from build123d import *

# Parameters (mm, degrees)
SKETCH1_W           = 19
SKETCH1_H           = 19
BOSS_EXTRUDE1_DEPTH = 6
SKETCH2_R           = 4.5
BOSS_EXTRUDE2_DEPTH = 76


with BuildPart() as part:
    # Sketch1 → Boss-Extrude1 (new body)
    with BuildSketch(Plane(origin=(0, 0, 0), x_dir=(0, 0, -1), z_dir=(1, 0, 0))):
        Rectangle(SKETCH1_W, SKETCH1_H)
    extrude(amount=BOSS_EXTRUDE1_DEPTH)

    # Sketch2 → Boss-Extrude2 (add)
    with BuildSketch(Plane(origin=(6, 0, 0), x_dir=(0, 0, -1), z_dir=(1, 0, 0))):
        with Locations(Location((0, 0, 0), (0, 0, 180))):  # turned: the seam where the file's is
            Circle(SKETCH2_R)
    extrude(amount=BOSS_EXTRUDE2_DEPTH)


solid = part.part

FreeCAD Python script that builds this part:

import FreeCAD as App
import Part
import Sketcher
from FreeCAD import Vector


def add_polygon(sketch, points):
    """Adds a closed chain of lines whose ends are joined by coincident constraints."""
    first, n = sketch.GeometryCount, len(points)
    for a, b in zip(points, points[1:] + points[:1]):
        sketch.addGeometry(Part.LineSegment(App.Vector(*a, 0), App.Vector(*b, 0)), False)
    for i in range(n):
        sketch.addConstraint(Sketcher.Constraint("Coincident", first + i, 2, first + (i + 1) % n, 1))

doc = App.newDocument("Part")
body = doc.addObject("PartDesign::Body", "Body")

# Sketch on YZ plane
sketch1 = doc.addObject("Sketcher::SketchObject", "Sketch")
body.addObject(sketch1)
sketch1.AttachmentSupport = (doc.YZ_Plane, [""])
sketch1.MapMode = "FlatFace"
add_polygon(sketch1, [(10, 10), (-10, 10), (-10, -10), (10, -10)])  # lines 0-3
sketch1.addConstraint([
    Sketcher.Constraint("Horizontal", 0),
    Sketcher.Constraint("Vertical", 1),
    Sketcher.Constraint("Horizontal", 2),
    Sketcher.Constraint("Vertical", 3),
    Sketcher.Constraint("Symmetric", 0, 2, 2, 2, -1, 1),
    Sketcher.Constraint("Equal", 2, 1),
    Sketcher.Constraint("DistanceX", 0, 2, 0, 1, 19.0),
])
pad1 = doc.addObject("PartDesign::Pad", "Pad")
body.addObject(pad1)
pad1.Profile = sketch1
pad1.Length = 6

# Sketch on YZ plane
sketch2 = doc.addObject("Sketcher::SketchObject", "Sketch001")
body.addObject(sketch2)
sketch2.AttachmentSupport = (doc.YZ_Plane, [""])
sketch2.MapMode = "FlatFace"
sketch2.AttachmentOffset = App.Placement(Vector(0, 0, 6), App.Rotation())
sketch2.addGeometry(Part.Circle(Vector(0, 0, 0), Vector(0, 0, 1), 4.5), False)
sketch2.addConstraint([
    Sketcher.Constraint("Coincident", 0, 3, -1, 1),
    Sketcher.Constraint("Diameter", 0, 9.0),
])
pad2 = doc.addObject("PartDesign::Pad", "Pad001")
body.addObject(pad2)
pad2.Profile = sketch2
pad2.Length = 76

doc.recompute()
